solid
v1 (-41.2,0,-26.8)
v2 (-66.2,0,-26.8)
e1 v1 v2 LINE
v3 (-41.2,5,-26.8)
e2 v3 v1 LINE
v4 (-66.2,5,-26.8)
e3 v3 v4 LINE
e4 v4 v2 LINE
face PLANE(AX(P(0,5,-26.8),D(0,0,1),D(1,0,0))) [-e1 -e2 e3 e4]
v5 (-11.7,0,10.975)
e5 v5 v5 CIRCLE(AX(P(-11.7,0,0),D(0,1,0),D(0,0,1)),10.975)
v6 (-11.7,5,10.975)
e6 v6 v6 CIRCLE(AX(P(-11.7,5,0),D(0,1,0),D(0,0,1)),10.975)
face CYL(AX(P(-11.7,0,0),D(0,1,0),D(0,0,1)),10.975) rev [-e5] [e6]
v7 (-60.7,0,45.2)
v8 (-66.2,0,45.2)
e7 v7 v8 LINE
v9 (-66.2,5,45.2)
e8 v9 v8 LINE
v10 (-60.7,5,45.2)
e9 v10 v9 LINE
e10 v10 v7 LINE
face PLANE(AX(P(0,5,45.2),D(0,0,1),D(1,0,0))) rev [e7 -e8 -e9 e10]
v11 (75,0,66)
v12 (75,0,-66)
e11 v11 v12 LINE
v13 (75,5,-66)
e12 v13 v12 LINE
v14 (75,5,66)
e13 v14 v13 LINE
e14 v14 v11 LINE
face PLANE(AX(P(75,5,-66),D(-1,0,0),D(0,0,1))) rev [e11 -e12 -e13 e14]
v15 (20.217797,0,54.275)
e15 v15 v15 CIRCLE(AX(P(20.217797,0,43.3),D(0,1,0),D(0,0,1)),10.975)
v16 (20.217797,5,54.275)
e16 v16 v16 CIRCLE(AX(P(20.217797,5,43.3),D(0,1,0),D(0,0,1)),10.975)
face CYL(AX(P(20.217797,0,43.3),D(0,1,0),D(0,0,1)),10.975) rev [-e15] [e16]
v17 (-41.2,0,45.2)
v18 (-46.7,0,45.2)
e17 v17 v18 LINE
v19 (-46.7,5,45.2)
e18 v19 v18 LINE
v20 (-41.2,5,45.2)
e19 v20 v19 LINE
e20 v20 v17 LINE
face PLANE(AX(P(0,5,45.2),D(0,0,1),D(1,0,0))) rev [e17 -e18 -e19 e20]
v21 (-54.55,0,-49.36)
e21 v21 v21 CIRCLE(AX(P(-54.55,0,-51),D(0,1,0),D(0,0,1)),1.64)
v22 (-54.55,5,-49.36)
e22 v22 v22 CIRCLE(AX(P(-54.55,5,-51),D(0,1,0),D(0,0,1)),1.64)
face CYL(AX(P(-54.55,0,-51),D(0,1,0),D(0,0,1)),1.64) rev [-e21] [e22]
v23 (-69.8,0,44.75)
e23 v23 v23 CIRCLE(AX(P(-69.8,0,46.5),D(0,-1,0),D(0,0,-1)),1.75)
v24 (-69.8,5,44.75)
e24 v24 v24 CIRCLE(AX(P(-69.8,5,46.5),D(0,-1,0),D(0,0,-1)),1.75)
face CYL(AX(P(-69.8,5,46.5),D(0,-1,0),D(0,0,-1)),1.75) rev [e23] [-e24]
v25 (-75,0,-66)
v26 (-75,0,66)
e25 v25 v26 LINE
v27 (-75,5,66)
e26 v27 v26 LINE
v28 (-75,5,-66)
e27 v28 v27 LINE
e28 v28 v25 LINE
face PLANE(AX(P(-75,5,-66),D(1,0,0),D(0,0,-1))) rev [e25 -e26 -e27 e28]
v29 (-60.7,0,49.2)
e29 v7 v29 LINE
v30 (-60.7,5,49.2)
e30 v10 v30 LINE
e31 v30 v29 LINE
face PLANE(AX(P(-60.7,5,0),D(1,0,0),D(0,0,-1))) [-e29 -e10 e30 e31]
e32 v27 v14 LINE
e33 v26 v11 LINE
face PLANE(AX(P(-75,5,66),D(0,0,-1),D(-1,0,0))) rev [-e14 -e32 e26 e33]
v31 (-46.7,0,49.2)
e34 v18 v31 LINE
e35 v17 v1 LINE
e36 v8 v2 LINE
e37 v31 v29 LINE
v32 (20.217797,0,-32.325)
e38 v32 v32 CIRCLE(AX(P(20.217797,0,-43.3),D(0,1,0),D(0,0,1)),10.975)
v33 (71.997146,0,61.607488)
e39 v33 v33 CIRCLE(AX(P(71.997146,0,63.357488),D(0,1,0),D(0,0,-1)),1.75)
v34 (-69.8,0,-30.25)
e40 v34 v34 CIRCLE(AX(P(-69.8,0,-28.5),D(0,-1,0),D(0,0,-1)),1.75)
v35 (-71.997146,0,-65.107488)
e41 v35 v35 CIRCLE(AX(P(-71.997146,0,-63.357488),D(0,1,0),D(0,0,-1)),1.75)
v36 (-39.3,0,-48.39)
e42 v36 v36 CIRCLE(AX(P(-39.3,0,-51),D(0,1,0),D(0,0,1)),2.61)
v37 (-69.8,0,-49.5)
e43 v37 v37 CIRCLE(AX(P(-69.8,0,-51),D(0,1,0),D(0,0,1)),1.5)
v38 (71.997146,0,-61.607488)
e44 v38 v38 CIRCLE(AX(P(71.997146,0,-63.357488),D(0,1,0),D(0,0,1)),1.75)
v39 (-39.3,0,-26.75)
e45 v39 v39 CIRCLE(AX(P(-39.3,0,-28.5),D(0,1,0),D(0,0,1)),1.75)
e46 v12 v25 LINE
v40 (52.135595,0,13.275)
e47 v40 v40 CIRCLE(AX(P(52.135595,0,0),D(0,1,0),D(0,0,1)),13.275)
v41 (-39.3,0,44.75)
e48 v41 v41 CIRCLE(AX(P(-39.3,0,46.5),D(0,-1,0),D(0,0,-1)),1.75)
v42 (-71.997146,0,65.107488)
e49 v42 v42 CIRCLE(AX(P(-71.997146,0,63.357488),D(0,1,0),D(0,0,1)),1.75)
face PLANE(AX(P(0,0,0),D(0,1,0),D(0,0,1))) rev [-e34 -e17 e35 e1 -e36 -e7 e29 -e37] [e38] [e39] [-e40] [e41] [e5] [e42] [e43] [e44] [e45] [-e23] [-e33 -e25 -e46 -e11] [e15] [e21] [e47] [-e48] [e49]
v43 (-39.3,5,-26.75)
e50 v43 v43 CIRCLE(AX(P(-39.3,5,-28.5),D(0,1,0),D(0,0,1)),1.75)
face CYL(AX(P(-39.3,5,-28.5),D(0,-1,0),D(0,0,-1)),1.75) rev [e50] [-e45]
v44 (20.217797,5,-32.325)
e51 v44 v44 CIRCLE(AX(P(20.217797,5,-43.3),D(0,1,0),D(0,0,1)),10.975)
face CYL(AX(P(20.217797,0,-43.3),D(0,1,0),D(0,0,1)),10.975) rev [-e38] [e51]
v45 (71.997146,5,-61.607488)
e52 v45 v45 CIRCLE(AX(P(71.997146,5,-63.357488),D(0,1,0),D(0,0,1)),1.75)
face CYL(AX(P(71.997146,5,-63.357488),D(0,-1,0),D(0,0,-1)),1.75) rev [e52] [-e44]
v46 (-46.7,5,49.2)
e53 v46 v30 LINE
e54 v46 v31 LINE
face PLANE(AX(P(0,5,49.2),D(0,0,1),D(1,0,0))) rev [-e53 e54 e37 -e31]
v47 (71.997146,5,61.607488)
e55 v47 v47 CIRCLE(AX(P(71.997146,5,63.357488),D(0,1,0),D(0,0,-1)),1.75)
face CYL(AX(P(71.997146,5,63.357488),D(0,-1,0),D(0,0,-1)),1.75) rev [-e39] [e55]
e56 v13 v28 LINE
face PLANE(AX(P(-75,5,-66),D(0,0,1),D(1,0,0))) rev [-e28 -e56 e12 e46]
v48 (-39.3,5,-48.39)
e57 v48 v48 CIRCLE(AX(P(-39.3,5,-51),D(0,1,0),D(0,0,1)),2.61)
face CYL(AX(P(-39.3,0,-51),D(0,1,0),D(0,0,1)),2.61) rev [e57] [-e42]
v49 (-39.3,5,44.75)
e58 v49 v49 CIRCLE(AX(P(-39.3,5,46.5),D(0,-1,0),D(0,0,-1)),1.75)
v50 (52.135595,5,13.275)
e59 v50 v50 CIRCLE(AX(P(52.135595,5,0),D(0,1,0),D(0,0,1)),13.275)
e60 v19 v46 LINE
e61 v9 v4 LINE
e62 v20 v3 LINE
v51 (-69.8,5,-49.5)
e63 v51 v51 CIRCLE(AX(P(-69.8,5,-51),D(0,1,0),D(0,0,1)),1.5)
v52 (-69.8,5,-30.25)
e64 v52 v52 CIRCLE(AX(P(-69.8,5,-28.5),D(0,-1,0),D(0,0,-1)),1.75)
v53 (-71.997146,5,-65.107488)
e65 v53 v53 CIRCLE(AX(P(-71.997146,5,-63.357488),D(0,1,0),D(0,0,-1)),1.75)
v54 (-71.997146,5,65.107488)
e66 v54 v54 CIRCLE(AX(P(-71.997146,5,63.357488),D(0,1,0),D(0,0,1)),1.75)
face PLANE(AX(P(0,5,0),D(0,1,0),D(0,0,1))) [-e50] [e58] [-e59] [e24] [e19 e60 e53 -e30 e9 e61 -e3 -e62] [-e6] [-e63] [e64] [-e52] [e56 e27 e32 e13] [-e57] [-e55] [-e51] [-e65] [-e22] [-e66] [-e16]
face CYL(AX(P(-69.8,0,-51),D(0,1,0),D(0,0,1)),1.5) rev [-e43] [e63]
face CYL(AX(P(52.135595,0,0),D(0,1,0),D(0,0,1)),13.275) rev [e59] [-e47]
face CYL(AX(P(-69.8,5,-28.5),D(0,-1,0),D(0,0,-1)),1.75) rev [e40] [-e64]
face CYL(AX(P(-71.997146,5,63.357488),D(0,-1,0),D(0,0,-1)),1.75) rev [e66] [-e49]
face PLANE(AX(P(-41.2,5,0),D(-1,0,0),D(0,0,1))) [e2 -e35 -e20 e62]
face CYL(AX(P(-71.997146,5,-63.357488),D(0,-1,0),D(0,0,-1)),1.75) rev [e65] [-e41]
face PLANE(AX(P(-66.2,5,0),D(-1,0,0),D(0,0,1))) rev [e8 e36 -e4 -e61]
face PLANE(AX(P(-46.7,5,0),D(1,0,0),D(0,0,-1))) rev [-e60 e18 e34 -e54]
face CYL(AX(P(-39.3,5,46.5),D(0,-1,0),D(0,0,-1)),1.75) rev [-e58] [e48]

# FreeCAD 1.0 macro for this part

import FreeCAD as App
import Part
import Sketcher
from FreeCAD import Vector

doc = App.newDocument("Part")
body = doc.addObject("PartDesign::Body", "Body")

# Sketch on XZ plane
sketch1 = body.newObject("Sketcher::SketchObject", "Sketch")
sketch1.AttachmentSupport = (doc.getObject("XZ_Plane"), [""])
sketch1.MapMode = "FlatFace"
sketch1.addGeometry([
    Part.LineSegment(Vector(-75, -66, 0), Vector(-75, 66, 0)),  # 0
    Part.LineSegment(Vector(-75, 66, 0), Vector(75, 66, 0)),  # 1
    Part.LineSegment(Vector(75, 66, 0), Vector(75, -66, 0)),  # 2
    Part.LineSegment(Vector(75, -66, 0), Vector(-75, -66, 0)),  # 3
    Part.Circle(Vector(-72, 63.4, 0), Vector(0, 0, 1), 1.8),  # 4
    Part.Circle(Vector(72, 63.4, 0), Vector(0, 0, 1), 1.8),  # 5
    Part.Circle(Vector(-72, -63.4, 0), Vector(0, 0, 1), 1.8),  # 6
    Part.Circle(Vector(72, -63.4, 0), Vector(0, 0, 1), 1.8),  # 7
], False)
sketch1.addConstraint([
    Sketcher.Constraint("Coincident", 0, 2, 1, 1),
    Sketcher.Constraint("Coincident", 1, 2, 2, 1),
    Sketcher.Constraint("Coincident", 2, 2, 3, 1),
    Sketcher.Constraint("Coincident", 3, 2, 0, 1),
    Sketcher.Constraint("Vertical", 0),
    Sketcher.Constraint("Horizontal", 1),
    Sketcher.Constraint("Vertical", 2),
    Sketcher.Constraint("Horizontal", 3),
    Sketcher.Constraint("Equal", 4, 5),
    Sketcher.Constraint("Equal", 5, 6),
    Sketcher.Constraint("Equal", 6, 7),
    Sketcher.Constraint("Symmetric", 5, 3, 6, 3, -1, 1),
    Sketcher.Constraint("Symmetric", 4, 3, 7, 3, -1, 1),
    Sketcher.Constraint("Symmetric", 0, 2, 2, 2, -1, 1),
    Sketcher.Constraint("Symmetric", 4, 3, 5, 3, -2),
    Sketcher.Constraint("Diameter", 4, 3.5),
    Sketcher.Constraint("DistanceX", 1, 1, 1, 2, 150.0),
    Sketcher.Constraint("DistanceY", 0, 1, 0, 2, 132.0),
    Sketcher.Constraint("DistanceY", -1, 1, 4, 3, 63.357488),
    Sketcher.Constraint("DistanceX", 4, 3, 5, 3, 143.994292),
])
pad1 = body.newObject("PartDesign::Pad", "Pad")
pad1.Profile = sketch1
pad1.Length = 5
pad1.Reversed = True

# Sketch on XZ plane
sketch2 = body.newObject("Sketcher::SketchObject", "Sketch001")
sketch2.AttachmentSupport = (doc.getObject("XZ_Plane"), [""])
sketch2.MapMode = "FlatFace"
sketch2.addGeometry([
    Part.LineSegment(Vector(-41.2, -26.8, 0), Vector(-41.2, 45.2, 0)),  # 0
    Part.LineSegment(Vector(-41.2, 45.2, 0), Vector(-46.7, 45.2, 0)),  # 1
    Part.LineSegment(Vector(-46.7, 45.2, 0), Vector(-46.7, 49.2, 0)),  # 2
    Part.LineSegment(Vector(-46.7, 49.2, 0), Vector(-60.7, 49.2, 0)),  # 3
    Part.LineSegment(Vector(-60.7, 49.2, 0), Vector(-60.7, 45.2, 0)),  # 4
    Part.LineSegment(Vector(-60.7, 45.2, 0), Vector(-66.2, 45.2, 0)),  # 5
    Part.LineSegment(Vector(-66.2, 45.2, 0), Vector(-66.2, -26.8, 0)),  # 6
    Part.LineSegment(Vector(-66.2, -26.8, 0), Vector(-41.2, -26.8, 0)),  # 7
    Part.Circle(Vector(-39.3, 46.5, 0), Vector(0, 0, 1), 1.8),  # 8
    Part.Circle(Vector(-39.3, -28.5, 0), Vector(0, 0, 1), 1.8),  # 9
    Part.Circle(Vector(-69.8, 46.5, 0), Vector(0, 0, 1), 1.8),  # 10
    Part.Circle(Vector(-69.8, -28.5, 0), Vector(0, 0, 1), 1.8),  # 11
], False)
sketch2.addConstraint([
    Sketcher.Constraint("Coincident", 0, 2, 1, 1),
    Sketcher.Constraint("Coincident", 1, 2, 2, 1),
    Sketcher.Constraint("Coincident", 2, 2, 3, 1),
    Sketcher.Constraint("Coincident", 3, 2, 4, 1),
    Sketcher.Constraint("Coincident", 4, 2, 5, 1),
    Sketcher.Constraint("Coincident", 5, 2, 6, 1),
    Sketcher.Constraint("Coincident", 6, 2, 7, 1),
    Sketcher.Constraint("Coincident", 7, 2, 0, 1),
    Sketcher.Constraint("Vertical", 0),
    Sketcher.Constraint("Horizontal", 1),
    Sketcher.Constraint("Vertical", 2),
    Sketcher.Constraint("Horizontal", 3),
    Sketcher.Constraint("Vertical", 4),
    Sketcher.Constraint("Horizontal", 5),
    Sketcher.Constraint("Vertical", 6),
    Sketcher.Constraint("Horizontal", 7),
    Sketcher.Constraint("Equal", 8, 9),
    Sketcher.Constraint("Equal", 9, 10),
    Sketcher.Constraint("Equal", 10, 11),
    Sketcher.Constraint("Horizontal", 8, 3, 10, 3),
    Sketcher.Constraint("Horizontal", 9, 3, 11, 3),
    Sketcher.Constraint("Horizontal", 1, 2, 4, 2),
    Sketcher.Constraint("Vertical", 8, 3, 9, 3),
    Sketcher.Constraint("Vertical", 10, 3, 11, 3),
    Sketcher.Constraint("Equal", 1, 5),
    Sketcher.Constraint("Diameter", 8, 3.5),
    Sketcher.Constraint("DistanceX", 3, 2, 3, 1, 14.0),
    Sketcher.Constraint("DistanceX", 7, 1, 7, 2, 25.0),
    Sketcher.Constraint("DistanceY", 0, 1, 0, 2, 72.0),
    Sketcher.Constraint("DistanceY", 2, 1, 2, 2, 4.0),
    Sketcher.Constraint("DistanceY", 9, 3, 8, 3, 75.0),
    Sketcher.Constraint("DistanceX", 8, 3, -1, 1, 39.3),
    Sketcher.Constraint("DistanceY", -1, 1, 8, 3, 46.5),
    Sketcher.Constraint("DistanceX", 10, 3, -1, 1, 69.8),
    Sketcher.Constraint("DistanceX", 0, 2, -1, 1, 41.2),
    Sketcher.Constraint("DistanceY", -1, 1, 0, 2, 45.2),
])
pocket1 = body.newObject("PartDesign::Pocket", "Pocket")
pocket1.Profile = sketch2
pocket1.Length = 5

# Sketch on XZ plane
sketch3 = body.newObject("Sketcher::SketchObject", "Sketch002")
sketch3.AttachmentSupport = (doc.getObject("XZ_Plane"), [""])
sketch3.MapMode = "FlatFace"
sketch3.AttachmentOffset = App.Placement(Vector(0, 0, -5), App.Rotation())
sketch3.addGeometry([
    Part.Circle(Vector(-69.8, -51, 0), Vector(0, 0, 1), 1.5),
    Part.Circle(Vector(-54.5, -51, 0), Vector(0, 0, 1), 1.6),
    Part.Circle(Vector(-39.3, -51, 0), Vector(0, 0, 1), 2.6),
], False)
sketch3.addConstraint([
    Sketcher.Constraint("Horizontal", 0, 3, 1, 3),
    Sketcher.Constraint("Horizontal", 1, 3, 2, 3),
    Sketcher.Constraint("Diameter", 0, 3.0),
    Sketcher.Constraint("Diameter", 1, 3.28),
    Sketcher.Constraint("Diameter", 2, 5.22),
    Sketcher.Constraint("DistanceY", 0, 3, -1, 1, 51.0),
    Sketcher.Constraint("DistanceX", 0, 3, -1, 1, 69.8),
    Sketcher.Constraint("DistanceX", 2, 3, -1, 1, 39.3),
    Sketcher.Constraint("DistanceX", 1, 3, -1, 1, 54.55),
])
pocket2 = body.newObject("PartDesign::Pocket", "Pocket001")
pocket2.Profile = sketch3
pocket2.Length = 5
pocket2.Reversed = True

# Sketch on XZ plane
sketch4 = body.newObject("Sketcher::SketchObject", "Sketch003")
sketch4.AttachmentSupport = (doc.getObject("XZ_Plane"), [""])
sketch4.MapMode = "FlatFace"
sketch4.AttachmentOffset = App.Placement(Vector(0, 0, -5), App.Rotation())
sketch4.addGeometry([
    Part.Circle(Vector(-12, 0, 0), Vector(0, 0, 1), 11),
    Part.Circle(Vector(20, -43, 0), Vector(0, 0, 1), 11),
    Part.Circle(Vector(20, 43, 0), Vector(0, 0, 1), 11),
    Part.Circle(Vector(52, 0, 0), Vector(0, 0, 1), 13),
], False)
sketch4.addConstraint([
    Sketcher.Constraint("Equal", 0, 1),
    Sketcher.Constraint("Equal", 1, 2),
    Sketcher.Constraint("Symmetric", 1, 3, 2, 3, -1),
    Sketcher.Constraint("PointOnObject", 0, 3, -1),
    Sketcher.Constraint("PointOnObject", 3, 3, -1),
    Sketcher.Constraint("Diameter", 0, 21.95),
    Sketcher.Constraint("Diameter", 3, 26.55),
    Sketcher.Constraint("DistanceX", 0, 3, -1, 1, 11.7),
    Sketcher.Constraint("DistanceY", 1, 3, -1, 1, 43.3),
    Sketcher.Constraint("DistanceX", -1, 1, 1, 3, 20.217797),
    Sketcher.Constraint("DistanceX", -1, 1, 3, 3, 52.135595),
])
pocket3 = body.newObject("PartDesign::Pocket", "Pocket002")
pocket3.Profile = sketch4
pocket3.Length = 5
pocket3.Reversed = True

doc.recompute()
